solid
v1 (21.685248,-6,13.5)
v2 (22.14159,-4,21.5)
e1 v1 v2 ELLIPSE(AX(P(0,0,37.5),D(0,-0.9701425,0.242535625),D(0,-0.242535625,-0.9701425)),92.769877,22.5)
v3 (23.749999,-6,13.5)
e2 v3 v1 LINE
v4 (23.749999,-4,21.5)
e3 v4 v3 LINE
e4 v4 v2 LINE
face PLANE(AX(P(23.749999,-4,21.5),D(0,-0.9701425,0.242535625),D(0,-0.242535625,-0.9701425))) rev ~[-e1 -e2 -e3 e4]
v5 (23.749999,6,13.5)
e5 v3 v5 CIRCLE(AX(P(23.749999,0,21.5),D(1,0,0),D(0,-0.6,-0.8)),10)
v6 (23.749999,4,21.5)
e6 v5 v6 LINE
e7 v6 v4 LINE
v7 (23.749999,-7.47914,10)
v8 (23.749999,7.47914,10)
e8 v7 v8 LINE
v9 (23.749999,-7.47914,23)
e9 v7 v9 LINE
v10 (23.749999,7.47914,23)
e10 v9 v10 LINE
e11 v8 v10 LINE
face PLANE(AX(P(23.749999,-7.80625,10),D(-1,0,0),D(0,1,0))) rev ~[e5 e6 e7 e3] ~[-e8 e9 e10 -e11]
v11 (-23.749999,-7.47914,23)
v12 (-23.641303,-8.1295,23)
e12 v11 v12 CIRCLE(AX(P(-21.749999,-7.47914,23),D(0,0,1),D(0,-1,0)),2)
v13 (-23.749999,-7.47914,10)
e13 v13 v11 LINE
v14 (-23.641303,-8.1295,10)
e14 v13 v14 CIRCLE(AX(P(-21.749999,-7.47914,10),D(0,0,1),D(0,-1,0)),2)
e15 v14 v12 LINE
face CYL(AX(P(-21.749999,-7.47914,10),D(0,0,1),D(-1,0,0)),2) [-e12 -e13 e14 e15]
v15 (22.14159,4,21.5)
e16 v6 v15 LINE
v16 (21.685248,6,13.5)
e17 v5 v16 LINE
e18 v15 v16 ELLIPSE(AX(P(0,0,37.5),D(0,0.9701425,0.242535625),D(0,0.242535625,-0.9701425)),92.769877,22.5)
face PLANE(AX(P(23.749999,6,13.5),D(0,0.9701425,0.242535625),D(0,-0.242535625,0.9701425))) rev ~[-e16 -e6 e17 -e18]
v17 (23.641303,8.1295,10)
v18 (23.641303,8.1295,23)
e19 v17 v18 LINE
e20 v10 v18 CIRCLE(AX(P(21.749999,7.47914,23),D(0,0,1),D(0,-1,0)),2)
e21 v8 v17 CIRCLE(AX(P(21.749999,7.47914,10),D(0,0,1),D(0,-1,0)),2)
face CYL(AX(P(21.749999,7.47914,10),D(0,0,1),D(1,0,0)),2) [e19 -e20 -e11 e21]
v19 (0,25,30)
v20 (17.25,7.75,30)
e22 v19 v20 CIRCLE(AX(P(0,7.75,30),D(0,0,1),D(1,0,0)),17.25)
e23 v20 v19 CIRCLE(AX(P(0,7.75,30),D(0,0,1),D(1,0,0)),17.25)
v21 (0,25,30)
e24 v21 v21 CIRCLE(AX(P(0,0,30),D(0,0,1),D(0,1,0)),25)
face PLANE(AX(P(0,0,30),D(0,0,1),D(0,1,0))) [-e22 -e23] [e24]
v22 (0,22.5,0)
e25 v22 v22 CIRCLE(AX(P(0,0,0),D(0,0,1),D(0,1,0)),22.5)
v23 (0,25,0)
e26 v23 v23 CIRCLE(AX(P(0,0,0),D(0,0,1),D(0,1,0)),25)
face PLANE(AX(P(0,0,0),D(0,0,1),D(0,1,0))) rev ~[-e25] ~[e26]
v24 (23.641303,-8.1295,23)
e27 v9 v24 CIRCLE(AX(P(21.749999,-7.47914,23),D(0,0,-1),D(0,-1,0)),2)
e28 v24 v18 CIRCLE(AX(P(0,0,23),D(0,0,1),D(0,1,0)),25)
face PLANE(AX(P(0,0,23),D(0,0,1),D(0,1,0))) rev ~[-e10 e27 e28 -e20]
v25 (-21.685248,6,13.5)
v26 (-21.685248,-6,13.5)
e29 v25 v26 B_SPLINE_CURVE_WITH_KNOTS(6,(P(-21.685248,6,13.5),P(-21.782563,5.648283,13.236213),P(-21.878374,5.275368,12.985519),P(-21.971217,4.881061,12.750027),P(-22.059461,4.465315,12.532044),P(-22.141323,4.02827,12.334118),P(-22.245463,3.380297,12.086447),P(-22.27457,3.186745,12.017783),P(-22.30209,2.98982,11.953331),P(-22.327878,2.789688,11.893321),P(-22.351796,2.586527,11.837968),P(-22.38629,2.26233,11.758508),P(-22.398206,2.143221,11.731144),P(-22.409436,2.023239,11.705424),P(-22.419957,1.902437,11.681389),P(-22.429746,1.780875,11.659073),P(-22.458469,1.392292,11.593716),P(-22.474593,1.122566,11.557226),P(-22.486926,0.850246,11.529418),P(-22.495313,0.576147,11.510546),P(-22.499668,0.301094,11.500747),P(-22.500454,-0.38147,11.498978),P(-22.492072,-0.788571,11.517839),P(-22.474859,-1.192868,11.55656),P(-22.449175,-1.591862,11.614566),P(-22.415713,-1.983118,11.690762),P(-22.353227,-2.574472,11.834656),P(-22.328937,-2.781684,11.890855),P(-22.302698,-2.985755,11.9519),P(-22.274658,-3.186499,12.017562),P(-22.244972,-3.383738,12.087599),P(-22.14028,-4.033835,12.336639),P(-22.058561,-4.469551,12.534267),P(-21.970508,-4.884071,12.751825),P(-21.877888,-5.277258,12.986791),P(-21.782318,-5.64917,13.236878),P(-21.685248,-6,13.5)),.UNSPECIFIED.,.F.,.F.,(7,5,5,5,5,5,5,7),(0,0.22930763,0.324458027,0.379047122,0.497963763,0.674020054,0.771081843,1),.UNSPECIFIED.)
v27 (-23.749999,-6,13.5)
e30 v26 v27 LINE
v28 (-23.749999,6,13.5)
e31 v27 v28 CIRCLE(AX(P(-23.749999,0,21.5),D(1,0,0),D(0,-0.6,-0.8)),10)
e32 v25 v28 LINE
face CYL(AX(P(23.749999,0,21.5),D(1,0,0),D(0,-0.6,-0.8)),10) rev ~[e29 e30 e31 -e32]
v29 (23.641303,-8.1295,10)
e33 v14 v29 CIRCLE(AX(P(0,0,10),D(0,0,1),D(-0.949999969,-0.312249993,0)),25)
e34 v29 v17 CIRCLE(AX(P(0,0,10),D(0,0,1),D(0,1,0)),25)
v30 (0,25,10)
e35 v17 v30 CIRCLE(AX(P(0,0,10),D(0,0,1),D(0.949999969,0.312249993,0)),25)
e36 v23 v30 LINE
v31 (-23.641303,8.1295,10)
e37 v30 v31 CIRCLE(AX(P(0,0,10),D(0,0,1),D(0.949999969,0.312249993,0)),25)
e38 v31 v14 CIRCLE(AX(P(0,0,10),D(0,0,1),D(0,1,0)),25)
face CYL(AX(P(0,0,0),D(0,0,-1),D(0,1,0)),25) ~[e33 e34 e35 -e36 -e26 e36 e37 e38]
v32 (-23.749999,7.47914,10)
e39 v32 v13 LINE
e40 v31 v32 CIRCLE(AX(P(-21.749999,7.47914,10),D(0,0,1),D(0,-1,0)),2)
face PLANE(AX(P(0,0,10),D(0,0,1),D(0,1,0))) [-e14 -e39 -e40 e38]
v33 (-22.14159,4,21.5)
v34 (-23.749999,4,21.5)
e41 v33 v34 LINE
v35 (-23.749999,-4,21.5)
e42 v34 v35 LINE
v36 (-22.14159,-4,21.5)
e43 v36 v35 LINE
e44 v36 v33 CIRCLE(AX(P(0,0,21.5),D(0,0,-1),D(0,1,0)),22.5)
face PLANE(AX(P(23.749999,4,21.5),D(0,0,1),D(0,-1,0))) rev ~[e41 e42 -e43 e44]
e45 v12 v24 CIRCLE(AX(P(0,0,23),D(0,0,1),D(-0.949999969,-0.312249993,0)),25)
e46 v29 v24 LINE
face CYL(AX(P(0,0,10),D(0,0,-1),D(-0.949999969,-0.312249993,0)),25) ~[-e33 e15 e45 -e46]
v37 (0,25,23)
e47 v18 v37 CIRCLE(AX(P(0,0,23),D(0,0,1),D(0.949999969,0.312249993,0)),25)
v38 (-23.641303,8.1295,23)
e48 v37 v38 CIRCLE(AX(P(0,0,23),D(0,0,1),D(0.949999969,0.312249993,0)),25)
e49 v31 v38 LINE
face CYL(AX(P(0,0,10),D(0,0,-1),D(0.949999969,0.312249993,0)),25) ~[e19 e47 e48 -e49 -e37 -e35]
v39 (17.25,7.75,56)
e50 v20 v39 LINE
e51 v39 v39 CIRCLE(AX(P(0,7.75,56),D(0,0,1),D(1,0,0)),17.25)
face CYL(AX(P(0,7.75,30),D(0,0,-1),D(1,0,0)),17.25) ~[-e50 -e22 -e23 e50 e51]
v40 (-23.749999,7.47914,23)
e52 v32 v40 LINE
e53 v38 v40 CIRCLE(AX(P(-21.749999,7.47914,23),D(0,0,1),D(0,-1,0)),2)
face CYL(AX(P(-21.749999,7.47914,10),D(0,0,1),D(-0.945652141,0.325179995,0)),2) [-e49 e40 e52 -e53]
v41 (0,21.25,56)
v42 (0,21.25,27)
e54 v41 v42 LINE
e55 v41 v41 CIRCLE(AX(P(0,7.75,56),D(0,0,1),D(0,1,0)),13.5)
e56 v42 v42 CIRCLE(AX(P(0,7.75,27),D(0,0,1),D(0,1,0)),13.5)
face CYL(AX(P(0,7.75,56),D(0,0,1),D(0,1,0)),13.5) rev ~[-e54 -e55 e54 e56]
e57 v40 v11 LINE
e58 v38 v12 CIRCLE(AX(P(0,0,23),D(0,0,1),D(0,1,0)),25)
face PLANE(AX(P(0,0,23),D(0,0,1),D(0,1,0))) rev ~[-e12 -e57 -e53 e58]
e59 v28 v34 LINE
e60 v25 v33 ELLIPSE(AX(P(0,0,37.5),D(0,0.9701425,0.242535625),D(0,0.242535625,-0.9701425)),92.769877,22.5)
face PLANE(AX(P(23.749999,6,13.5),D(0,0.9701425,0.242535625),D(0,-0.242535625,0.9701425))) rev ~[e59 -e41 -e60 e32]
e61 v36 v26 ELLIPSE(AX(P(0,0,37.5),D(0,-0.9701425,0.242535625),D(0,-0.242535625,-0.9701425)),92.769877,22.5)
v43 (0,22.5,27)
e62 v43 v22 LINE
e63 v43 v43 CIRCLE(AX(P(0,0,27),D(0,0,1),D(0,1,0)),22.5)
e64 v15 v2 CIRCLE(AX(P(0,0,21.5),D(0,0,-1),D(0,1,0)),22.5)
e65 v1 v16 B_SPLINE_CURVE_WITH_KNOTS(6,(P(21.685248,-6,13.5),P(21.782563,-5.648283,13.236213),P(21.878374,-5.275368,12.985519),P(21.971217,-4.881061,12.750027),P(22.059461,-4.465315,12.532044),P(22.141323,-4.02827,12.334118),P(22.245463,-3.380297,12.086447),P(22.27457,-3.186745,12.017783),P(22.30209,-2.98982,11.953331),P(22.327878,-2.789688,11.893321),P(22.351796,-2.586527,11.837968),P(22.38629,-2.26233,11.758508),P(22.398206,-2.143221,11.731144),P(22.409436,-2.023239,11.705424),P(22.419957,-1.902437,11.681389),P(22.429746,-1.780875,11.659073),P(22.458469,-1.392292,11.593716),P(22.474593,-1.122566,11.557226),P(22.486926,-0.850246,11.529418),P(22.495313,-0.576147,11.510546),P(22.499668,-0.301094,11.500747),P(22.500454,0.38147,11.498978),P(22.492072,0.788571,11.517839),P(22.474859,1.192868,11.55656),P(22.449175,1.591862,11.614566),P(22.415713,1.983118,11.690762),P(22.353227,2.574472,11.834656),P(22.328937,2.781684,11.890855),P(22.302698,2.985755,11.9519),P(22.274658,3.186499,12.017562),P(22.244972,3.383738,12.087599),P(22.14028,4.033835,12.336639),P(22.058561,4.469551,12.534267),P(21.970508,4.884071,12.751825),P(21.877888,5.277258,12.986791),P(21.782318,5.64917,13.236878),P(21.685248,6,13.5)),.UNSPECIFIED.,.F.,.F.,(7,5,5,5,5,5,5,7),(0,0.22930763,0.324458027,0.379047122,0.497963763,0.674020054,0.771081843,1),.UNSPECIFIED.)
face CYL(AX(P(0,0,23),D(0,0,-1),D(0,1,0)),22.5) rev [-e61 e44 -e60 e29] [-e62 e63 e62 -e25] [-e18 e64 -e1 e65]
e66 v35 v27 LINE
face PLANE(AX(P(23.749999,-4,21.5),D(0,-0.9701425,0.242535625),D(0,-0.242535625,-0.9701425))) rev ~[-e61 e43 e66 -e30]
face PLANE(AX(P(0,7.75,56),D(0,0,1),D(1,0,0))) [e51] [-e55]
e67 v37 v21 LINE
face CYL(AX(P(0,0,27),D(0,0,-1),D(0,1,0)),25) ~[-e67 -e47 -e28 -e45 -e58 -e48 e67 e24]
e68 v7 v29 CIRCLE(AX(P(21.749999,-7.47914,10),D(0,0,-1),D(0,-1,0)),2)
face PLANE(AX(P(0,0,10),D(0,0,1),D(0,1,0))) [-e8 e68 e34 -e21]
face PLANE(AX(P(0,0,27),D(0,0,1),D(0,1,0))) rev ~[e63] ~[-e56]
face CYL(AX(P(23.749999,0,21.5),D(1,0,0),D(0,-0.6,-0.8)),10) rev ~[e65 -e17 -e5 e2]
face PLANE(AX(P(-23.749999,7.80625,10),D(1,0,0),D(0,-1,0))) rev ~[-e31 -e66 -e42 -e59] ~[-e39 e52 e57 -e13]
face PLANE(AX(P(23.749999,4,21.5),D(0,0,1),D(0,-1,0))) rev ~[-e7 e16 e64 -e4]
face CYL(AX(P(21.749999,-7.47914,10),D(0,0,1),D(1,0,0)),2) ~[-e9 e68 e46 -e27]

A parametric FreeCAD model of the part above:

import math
import FreeCAD as App
import Part
import Sketcher
from FreeCAD import Vector


def edges_at(feature, points):
    """Names of the edges that pass closest to the given points."""
    edges = feature.Shape.Edges
    near = lambda p: min(range(len(edges)), key=lambda i: edges[i].distToShape(Part.Vertex(*p))[0])
    return sorted({f"Edge{near(p) + 1}" for p in points})

doc = App.newDocument("Part")
body = doc.addObject("PartDesign::Body", "Body")

sketch1 = body.newObject("Sketcher::SketchObject", "Sketch")
sketch1.AttachmentSupport = (doc.getObject("XY_Plane"), [""])
sketch1.MapMode = "FlatFace"
sketch1.AttachmentOffset = App.Placement(Vector(0, 0, 56), App.Rotation())
sketch1.addGeometry(Part.Circle(Vector(0, 8, 0), Vector(0, 0, 1), 14), False)
sketch1.addConstraint(Sketcher.Constraint("PointOnObject", 0, 3, -2))
sketch1.addConstraint(Sketcher.Constraint("Diameter", 0, 27.0))
sketch1.addConstraint(Sketcher.Constraint("DistanceY", -1, 1, 0, 3, 7.75))
pad1 = body.newObject("PartDesign::Pad", "Pad")
pad1.Profile = sketch1
pad1.Length = 30
pad1.Reversed = True
body2 = doc.addObject("PartDesign::Body", "Body001")

sketch2 = body2.newObject("Sketcher::SketchObject", "Sketch001")
sketch2.AttachmentSupport = (doc.getObject("XY_Plane001"), [""])
sketch2.MapMode = "FlatFace"
sketch2.AttachmentOffset = App.Placement(Vector(0, 0, 27), App.Rotation())
sketch2.addGeometry(Part.Circle(Vector(0, 0, 0), Vector(0, 0, 1), 25), False)
sketch2.addConstraint(Sketcher.Constraint("Coincident", 0, 3, -1, 1))
sketch2.addConstraint(Sketcher.Constraint("Diameter", 0, 50.0))
pad2 = body2.newObject("PartDesign::Pad", "Pad001")
pad2.Profile = sketch2
pad2.Length = 3
body3 = doc.addObject("PartDesign::Body", "Body002")

sketch3 = body3.newObject("Sketcher::SketchObject", "Sketch002")
sketch3.AttachmentSupport = (doc.getObject("YZ_Plane002"), [""])
sketch3.MapMode = "FlatFace"
sketch3.AttachmentOffset = App.Placement(Vector(0, 0, 23.749999), App.Rotation())
sketch3.addGeometry(Part.LineSegment(Vector(4, 22, 0), Vector(-4, 22, 0)), False)
sketch3.addGeometry(Part.LineSegment(Vector(-4, 22, 0), Vector(-6, 14, 0)), False)
sketch3.addGeometry(Part.ArcOfCircle(Part.Circle(Vector(0, 22, 0), Vector(0, 0, 1), 10), math.radians(-127), math.radians(-53)), False)
sketch3.addGeometry(Part.LineSegment(Vector(6, 14, 0), Vector(4, 22, 0)), False)
sketch3.addConstraint(Sketcher.Constraint("Coincident", 0, 2, 1, 1))
sketch3.addConstraint(Sketcher.Constraint("Coincident", 1, 2, 2, 1))
sketch3.addConstraint(Sketcher.Constraint("Coincident", 2, 2, 3, 1))
sketch3.addConstraint(Sketcher.Constraint("Coincident", 3, 2, 0, 1))
sketch3.addConstraint(Sketcher.Constraint("Horizontal", 0))
sketch3.addConstraint(Sketcher.Constraint("Symmetric", 1, 2, 2, 2, -2))
sketch3.addConstraint(Sketcher.Constraint("Horizontal", 2, 3, 0, 2))
sketch3.addConstraint(Sketcher.Constraint("Equal", 1, 3))
sketch3.addConstraint(Sketcher.Constraint("Radius", 2, 10.0))
sketch3.addConstraint(Sketcher.Constraint("DistanceX", 0, 2, 0, 1, 8.0))
sketch3.addConstraint(Sketcher.Constraint("DistanceX", 1, 2, -1, 1, 6.0))
sketch3.addConstraint(Sketcher.Constraint("DistanceY", -1, 1, 2, 3, 21.5))
pad3 = body3.newObject("PartDesign::Pad", "Pad002")
pad3.Profile = sketch3
pad3.Length = 47.5
pad3.Reversed = True
body4 = doc.addObject("PartDesign::Body", "Body003")

sketch4 = body4.newObject("Sketcher::SketchObject", "Sketch003")
sketch4.AttachmentSupport = (doc.getObject("XY_Plane003"), [""])
sketch4.MapMode = "FlatFace"
sketch4.AttachmentOffset = App.Placement(Vector(0, 0, 23), App.Rotation())
sketch4.addGeometry(Part.Circle(Vector(0, 0, 0), Vector(0, 0, 1), 25), False)
sketch4.addGeometry(Part.Circle(Vector(0, 0, 0), Vector(0, 0, 1), 22), False)
sketch4.addConstraint(Sketcher.Constraint("Coincident", 0, 3, -1, 1))
sketch4.addConstraint(Sketcher.Constraint("Coincident", 1, 3, -1, 1))
sketch4.addConstraint(Sketcher.Constraint("Diameter", 0, 50.0))
sketch4.addConstraint(Sketcher.Constraint("Diameter", 1, 45.0))
pad4 = body4.newObject("PartDesign::Pad", "Pad003")
pad4.Profile = sketch4
pad4.Length = 4
body5 = doc.addObject("PartDesign::Body", "Body004")
body5.AllowCompound = True

sketch5 = body5.newObject("Sketcher::SketchObject", "Sketch004")
sketch5.AttachmentSupport = (doc.getObject("XY_Plane004"), [""])
sketch5.MapMode = "FlatFace"
sketch5.addGeometry(Part.Circle(Vector(0, 0, 0), Vector(0, 0, 1), 25), False)
sketch5.addGeometry(Part.Circle(Vector(0, 0, 0), Vector(0, 0, 1), 22), False)
sketch5.addConstraint(Sketcher.Constraint("Coincident", 0, 3, -1, 1))
sketch5.addConstraint(Sketcher.Constraint("Coincident", 1, 3, -1, 1))
sketch5.addConstraint(Sketcher.Constraint("Diameter", 0, 50.0))
sketch5.addConstraint(Sketcher.Constraint("Diameter", 1, 45.0))
pad5 = body5.newObject("PartDesign::Pad", "Pad004")
pad5.Profile = sketch5
pad5.Length = 10
doc.recompute()

boolean = body5.newObject("PartDesign::Boolean", "Boolean")
boolean.Type = "Fuse"
boolean.addObjects([body4])
body6 = doc.addObject("PartDesign::Body", "Body005")

sketch6 = body6.newObject("Sketcher::SketchObject", "Sketch005")
sketch6.AttachmentSupport = (doc.getObject("XY_Plane005"), [""])
sketch6.MapMode = "FlatFace"
sketch6.AttachmentOffset = App.Placement(Vector(0, 0, 10), App.Rotation())
sketch6.addGeometry(Part.ArcOfCircle(Part.Circle(Vector(0, 0, 0), Vector(0, 0, 1), 25), math.radians(18), math.radians(162)), False)
sketch6.addGeometry(Part.LineSegment(Vector(-24, 8, 0), Vector(-24, -8, 0)), False)
sketch6.addGeometry(Part.ArcOfCircle(Part.Circle(Vector(0, 0, 0), Vector(0, 0, 1), 25), math.radians(-162), math.radians(-18)), False)
sketch6.addGeometry(Part.LineSegment(Vector(24, -8, 0), Vector(24, 8, 0)), False)
sketch6.addGeometry(Part.Circle(Vector(0, 0, 0), Vector(0, 0, 1), 22), False)
sketch6.addConstraint(Sketcher.Constraint("Coincident", 0, 2, 1, 1))
sketch6.addConstraint(Sketcher.Constraint("Coincident", 1, 2, 2, 1))
sketch6.addConstraint(Sketcher.Constraint("Coincident", 2, 2, 3, 1))
sketch6.addConstraint(Sketcher.Constraint("Coincident", 3, 2, 0, 1))
sketch6.addConstraint(Sketcher.Constraint("Vertical", 1))
sketch6.addConstraint(Sketcher.Constraint("Vertical", 3))
sketch6.addConstraint(Sketcher.Constraint("Coincident", 0, 3, -1, 1))
sketch6.addConstraint(Sketcher.Constraint("Coincident", 2, 3, -1, 1))
sketch6.addConstraint(Sketcher.Constraint("Coincident", 4, 3, -1, 1))
sketch6.addConstraint(Sketcher.Constraint("Equal", 0, 2))
sketch6.addConstraint(Sketcher.Constraint("Horizontal", 1, 2, 2, 2))
sketch6.addConstraint(Sketcher.Constraint("Diameter", 4, 45.0))
sketch6.addConstraint(Sketcher.Constraint("Radius", 0, 25.0))
sketch6.addConstraint(Sketcher.Constraint("DistanceX", 1, 2, 2, 2, 47.499998))
pad6 = body6.newObject("PartDesign::Pad", "Pad005")
pad6.Profile = sketch6
pad6.Length = 13
doc.recompute()

fillet = body6.newObject("PartDesign::Fillet", "Fillet")
fillet.Base = (pad6, edges_at(pad6, [(23.75, -7.806, 16.5)]))
fillet.Radius = 2
doc.recompute()

fillet2 = body6.newObject("PartDesign::Fillet", "Fillet001")
fillet2.Base = (fillet, edges_at(fillet, [(23.75, 7.806, 16.5)]))
fillet2.Radius = 2
doc.recompute()

fillet3 = body6.newObject("PartDesign::Fillet", "Fillet002")
fillet3.Base = (fillet2, edges_at(fillet2, [(-23.75, 7.806, 16.5)]))
fillet3.Radius = 2
doc.recompute()

fillet4 = body6.newObject("PartDesign::Fillet", "Fillet003")
fillet4.Base = (fillet3, edges_at(fillet3, [(-23.75, -7.806, 16.5)]))
fillet4.Radius = 2
doc.recompute()

boolean2 = body6.newObject("PartDesign::Boolean", "Boolean001")
boolean2.Type = "Fuse"
boolean2.addObjects([body5])
doc.recompute()

boolean3 = body6.newObject("PartDesign::Boolean", "Boolean002")
boolean3.Type = "Cut"
boolean3.addObjects([body3])
doc.recompute()

boolean4 = body6.newObject("PartDesign::Boolean", "Boolean003")
boolean4.Type = "Fuse"
boolean4.addObjects([body2])
body7 = doc.addObject("PartDesign::Body", "Body006")

sketch7 = body7.newObject("Sketcher::SketchObject", "Sketch006")
sketch7.AttachmentSupport = (doc.getObject("XY_Plane006"), [""])
sketch7.MapMode = "FlatFace"
sketch7.AttachmentOffset = App.Placement(Vector(0, 0, 30), App.Rotation())
sketch7.addGeometry(Part.Circle(Vector(0, 8, 0), Vector(0, 0, 1), 17), False)
sketch7.addConstraint(Sketcher.Constraint("PointOnObject", 0, 3, -2))
sketch7.addConstraint(Sketcher.Constraint("Diameter", 0, 34.5))
sketch7.addConstraint(Sketcher.Constraint("DistanceY", -1, 1, 0, 3, 7.75))
pad7 = body7.newObject("PartDesign::Pad", "Pad006")
pad7.Profile = sketch7
pad7.Length = 26
doc.recompute()

boolean5 = body7.newObject("PartDesign::Boolean", "Boolean004")
boolean5.Type = "Fuse"
boolean5.addObjects([body6])
doc.recompute()

boolean6 = body7.newObject("PartDesign::Boolean", "Boolean005")
boolean6.Type = "Cut"
boolean6.addObjects([body])

doc.recompute()
